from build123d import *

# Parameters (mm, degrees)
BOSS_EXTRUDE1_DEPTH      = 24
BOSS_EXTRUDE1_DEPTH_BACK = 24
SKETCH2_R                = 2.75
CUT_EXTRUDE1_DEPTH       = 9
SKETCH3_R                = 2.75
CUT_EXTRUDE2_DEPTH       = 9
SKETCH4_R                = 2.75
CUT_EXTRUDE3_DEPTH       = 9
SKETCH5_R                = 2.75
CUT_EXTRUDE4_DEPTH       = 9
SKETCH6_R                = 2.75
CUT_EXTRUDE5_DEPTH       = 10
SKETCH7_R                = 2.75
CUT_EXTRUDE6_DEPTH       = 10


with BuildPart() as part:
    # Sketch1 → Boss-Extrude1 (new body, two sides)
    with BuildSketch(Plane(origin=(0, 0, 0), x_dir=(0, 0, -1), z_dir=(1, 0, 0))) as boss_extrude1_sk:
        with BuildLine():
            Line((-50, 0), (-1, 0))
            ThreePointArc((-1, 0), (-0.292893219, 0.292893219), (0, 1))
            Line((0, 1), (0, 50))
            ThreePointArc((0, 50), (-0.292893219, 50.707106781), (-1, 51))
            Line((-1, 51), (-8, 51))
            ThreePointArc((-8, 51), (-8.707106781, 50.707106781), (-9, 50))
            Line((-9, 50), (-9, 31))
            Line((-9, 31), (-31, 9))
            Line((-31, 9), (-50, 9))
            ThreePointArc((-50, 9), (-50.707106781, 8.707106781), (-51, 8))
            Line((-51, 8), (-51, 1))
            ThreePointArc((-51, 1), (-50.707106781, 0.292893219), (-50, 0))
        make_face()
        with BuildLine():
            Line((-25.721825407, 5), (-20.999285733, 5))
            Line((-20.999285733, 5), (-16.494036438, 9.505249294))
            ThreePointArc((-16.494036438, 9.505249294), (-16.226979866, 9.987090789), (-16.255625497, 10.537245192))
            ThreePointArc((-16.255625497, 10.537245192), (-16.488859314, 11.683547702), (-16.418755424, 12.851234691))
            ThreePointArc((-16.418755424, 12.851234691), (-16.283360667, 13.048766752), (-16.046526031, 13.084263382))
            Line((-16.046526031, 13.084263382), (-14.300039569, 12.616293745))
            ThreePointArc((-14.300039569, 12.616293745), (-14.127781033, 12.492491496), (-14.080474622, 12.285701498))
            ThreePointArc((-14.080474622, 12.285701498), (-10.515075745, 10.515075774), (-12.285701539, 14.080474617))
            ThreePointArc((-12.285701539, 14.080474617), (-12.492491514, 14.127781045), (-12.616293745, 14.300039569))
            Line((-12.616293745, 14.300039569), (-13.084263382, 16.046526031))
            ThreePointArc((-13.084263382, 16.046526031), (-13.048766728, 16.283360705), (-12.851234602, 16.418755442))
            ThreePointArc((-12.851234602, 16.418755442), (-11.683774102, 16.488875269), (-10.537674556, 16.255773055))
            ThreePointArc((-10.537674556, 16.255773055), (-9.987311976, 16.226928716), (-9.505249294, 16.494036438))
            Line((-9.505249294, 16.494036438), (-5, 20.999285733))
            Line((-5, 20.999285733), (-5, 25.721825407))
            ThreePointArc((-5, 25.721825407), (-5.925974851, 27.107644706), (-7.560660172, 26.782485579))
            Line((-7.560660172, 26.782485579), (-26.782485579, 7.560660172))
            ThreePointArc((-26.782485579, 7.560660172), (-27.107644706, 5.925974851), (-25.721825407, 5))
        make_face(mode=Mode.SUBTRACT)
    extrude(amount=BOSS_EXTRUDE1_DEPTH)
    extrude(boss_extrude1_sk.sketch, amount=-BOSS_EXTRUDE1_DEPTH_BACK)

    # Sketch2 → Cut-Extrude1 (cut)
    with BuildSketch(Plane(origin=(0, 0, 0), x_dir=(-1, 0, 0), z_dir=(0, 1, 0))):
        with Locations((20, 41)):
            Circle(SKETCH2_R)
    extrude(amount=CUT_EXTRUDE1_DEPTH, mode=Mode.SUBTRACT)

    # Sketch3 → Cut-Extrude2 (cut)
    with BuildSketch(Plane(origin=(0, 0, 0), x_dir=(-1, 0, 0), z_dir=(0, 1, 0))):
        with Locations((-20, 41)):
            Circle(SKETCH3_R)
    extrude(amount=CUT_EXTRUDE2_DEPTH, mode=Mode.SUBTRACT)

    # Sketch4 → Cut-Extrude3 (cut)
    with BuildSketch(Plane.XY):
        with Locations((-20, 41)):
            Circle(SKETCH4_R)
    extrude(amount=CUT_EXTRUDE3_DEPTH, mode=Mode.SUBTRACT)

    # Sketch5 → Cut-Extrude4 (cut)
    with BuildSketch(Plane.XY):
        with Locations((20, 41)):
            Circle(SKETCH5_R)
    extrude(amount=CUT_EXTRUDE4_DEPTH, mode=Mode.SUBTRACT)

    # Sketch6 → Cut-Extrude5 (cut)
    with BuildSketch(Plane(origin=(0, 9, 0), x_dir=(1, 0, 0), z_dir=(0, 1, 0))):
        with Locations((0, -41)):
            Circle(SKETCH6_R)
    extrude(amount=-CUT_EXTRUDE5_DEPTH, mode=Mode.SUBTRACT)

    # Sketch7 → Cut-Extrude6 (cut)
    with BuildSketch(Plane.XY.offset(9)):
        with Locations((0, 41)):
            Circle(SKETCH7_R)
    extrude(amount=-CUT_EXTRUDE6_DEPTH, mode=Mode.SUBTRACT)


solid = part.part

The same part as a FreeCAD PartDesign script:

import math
import FreeCAD as App
import Part
import Sketcher

V = App.Vector
Q = App.Units.Quantity

doc = App.newDocument("Part")
body = doc.addObject("PartDesign::Body", "Body")

# Sketch on YZ plane
sketch1 = body.newObject("Sketcher::SketchObject", "Sketch")
sketch1.AttachmentSupport = (doc.getObject("YZ_Plane"), [""])
sketch1.MapMode = "FlatFace"
sketch1.addGeometry(Part.LineSegment(V(0, 50, 0), V(0, 1, 0)), False)
sketch1.addGeometry(Part.ArcOfCircle(Part.Circle(V(1, 1, 0), V(0, 0, 1), 1), math.radians(-180), math.radians(-90)), False)
sketch1.addGeometry(Part.LineSegment(V(1, 0, 0), V(50, 0, 0)), False)
sketch1.addGeometry(Part.ArcOfCircle(Part.Circle(V(50, 1, 0), V(0, 0, 1), 1), math.radians(-90), math.radians(0)), False)
sketch1.addGeometry(Part.LineSegment(V(51, 1, 0), V(51, 8, 0)), False)
sketch1.addGeometry(Part.ArcOfCircle(Part.Circle(V(50, 8, 0), V(0, 0, 1), 1), math.radians(0), math.radians(90)), False)
sketch1.addGeometry(Part.LineSegment(V(50, 9, 0), V(31, 9, 0)), False)
sketch1.addGeometry(Part.LineSegment(V(31, 9, 0), V(9, 31, 0)), False)
sketch1.addGeometry(Part.LineSegment(V(9, 31, 0), V(9, 50, 0)), False)
sketch1.addGeometry(Part.ArcOfCircle(Part.Circle(V(8, 50, 0), V(0, 0, 1), 1), math.radians(0), math.radians(90)), False)
sketch1.addGeometry(Part.LineSegment(V(8, 51, 0), V(1, 51, 0)), False)
sketch1.addGeometry(Part.ArcOfCircle(Part.Circle(V(1, 50, 0), V(0, 0, 1), 1), math.radians(90), math.radians(180)), False)
sketch1.addGeometry(Part.LineSegment(V(5, 20.999286, 0), V(5, 25.721825, 0)), False)
sketch1.addGeometry(Part.ArcOfCircle(Part.Circle(V(6.5, 25.721825, 0), V(0, 0, 1), 1.5), math.radians(45), math.radians(180)), False)
sketch1.addGeometry(Part.LineSegment(V(7.56066, 26.782486, 0), V(26.782486, 7.56066, 0)), False)
sketch1.addGeometry(Part.ArcOfCircle(Part.Circle(V(25.721825, 6.5, 0), V(0, 0, 1), 1.5), math.radians(-90), math.radians(45)), False)
sketch1.addGeometry(Part.LineSegment(V(25.721825, 5, 0), V(20.999286, 5, 0)), False)
sketch1.addGeometry(Part.LineSegment(V(20.999286, 5, 0), V(16.494036, 9.505249, 0)), False)
sketch1.addGeometry(Part.ArcOfCircle(Part.Circle(V(17.201318, 10.212182, 0), V(0, 0, 1), 1), math.radians(161.004563), math.radians(224.985872)), False)
sketch1.addGeometry(Part.ArcOfCircle(Part.Circle(V(12, 12, 0), V(0, 0, 1), 4.5), math.radians(-18.963225), math.radians(10.903956)), False)
sketch1.addGeometry(Part.ArcOfCircle(Part.Circle(V(16.124172, 12.794486, 0), V(0, 0, 1), 0.3), math.radians(10.903955), math.radians(105)), False)
sketch1.addGeometry(Part.LineSegment(V(16.046526, 13.084263, 0), V(14.30004, 12.616294, 0)), False)
sketch1.addGeometry(Part.ArcOfCircle(Part.Circle(V(14.377685, 12.326516, 0), V(0, 0, 1), 0.3), math.radians(105), math.radians(187.819237)), False)
sketch1.addGeometry(Part.ArcOfCircle(Part.Circle(V(12, 12, 0), V(0, 0, 1), 2.1), math.radians(82.180756), math.radians(367.819245)), False)
sketch1.addGeometry(Part.ArcOfCircle(Part.Circle(V(12.326516, 14.377685, 0), V(0, 0, 1), 0.3), math.radians(-97.819244), math.radians(-15)), False)
sketch1.addGeometry(Part.LineSegment(V(12.616294, 14.30004, 0), V(13.084263, 16.046526, 0)), False)
sketch1.addGeometry(Part.ArcOfCircle(Part.Circle(V(12.794486, 16.124172, 0), V(0, 0, 1), 0.3), math.radians(-15), math.radians(79.096028)), False)
sketch1.addGeometry(Part.ArcOfCircle(Part.Circle(V(12, 12, 0), V(0, 0, 1), 4.5), math.radians(79.096043), math.radians(108.969006)), False)
sketch1.addGeometry(Part.ArcOfCircle(Part.Circle(V(10.212182, 17.201318, 0), V(0, 0, 1), 1), math.radians(-134.985864), math.radians(-71.030572)), False)
sketch1.addGeometry(Part.LineSegment(V(9.505249, 16.494036, 0), V(5, 20.999286, 0)), False)
sketch1.addConstraint(Sketcher.Constraint("Tangent", 0, 2, 1, 1))
sketch1.addConstraint(Sketcher.Constraint("Tangent", 1, 2, 2, 1))
sketch1.addConstraint(Sketcher.Constraint("Tangent", 2, 2, 3, 1))
sketch1.addConstraint(Sketcher.Constraint("Tangent", 3, 2, 4, 1))
sketch1.addConstraint(Sketcher.Constraint("Tangent", 4, 2, 5, 1))
sketch1.addConstraint(Sketcher.Constraint("Tangent", 5, 2, 6, 1))
sketch1.addConstraint(Sketcher.Constraint("Coincident", 6, 2, 7, 1))
sketch1.addConstraint(Sketcher.Constraint("Coincident", 7, 2, 8, 1))
sketch1.addConstraint(Sketcher.Constraint("Tangent", 8, 2, 9, 1))
sketch1.addConstraint(Sketcher.Constraint("Tangent", 9, 2, 10, 1))
sketch1.addConstraint(Sketcher.Constraint("Tangent", 10, 2, 11, 1))
sketch1.addConstraint(Sketcher.Constraint("Tangent", 11, 2, 0, 1))
sketch1.addConstraint(Sketcher.Constraint("Tangent", 12, 2, 13, 2))
sketch1.addConstraint(Sketcher.Constraint("Tangent", 13, 1, 14, 1))
sketch1.addConstraint(Sketcher.Constraint("Tangent", 14, 2, 15, 2))
sketch1.addConstraint(Sketcher.Constraint("Tangent", 15, 1, 16, 1))
sketch1.addConstraint(Sketcher.Constraint("Coincident", 16, 2, 17, 1))
sketch1.addConstraint(Sketcher.Constraint("Coincident", 17, 2, 18, 2))
sketch1.addConstraint(Sketcher.Constraint("Coincident", 18, 1, 19, 1))
sketch1.addConstraint(Sketcher.Constraint("Tangent", 19, 2, 20, 1))
sketch1.addConstraint(Sketcher.Constraint("Tangent", 20, 2, 21, 1))
sketch1.addConstraint(Sketcher.Constraint("Tangent", 21, 2, 22, 1))
sketch1.addConstraint(Sketcher.Constraint("Tangent", 22, 2, 23, 2))
sketch1.addConstraint(Sketcher.Constraint("Tangent", 23, 1, 24, 1))
sketch1.addConstraint(Sketcher.Constraint("Tangent", 24, 2, 25, 1))
sketch1.addConstraint(Sketcher.Constraint("Tangent", 25, 2, 26, 1))
sketch1.addConstraint(Sketcher.Constraint("Tangent", 26, 2, 27, 1))
sketch1.addConstraint(Sketcher.Constraint("Coincident", 27, 2, 28, 2))
sketch1.addConstraint(Sketcher.Constraint("Coincident", 28, 1, 29, 1))
sketch1.addConstraint(Sketcher.Constraint("Coincident", 29, 2, 12, 1))
sketch1.addConstraint(Sketcher.Constraint("Vertical", 0))
sketch1.addConstraint(Sketcher.Constraint("Horizontal", 2))
sketch1.addConstraint(Sketcher.Constraint("Vertical", 4))
sketch1.addConstraint(Sketcher.Constraint("Horizontal", 6))
sketch1.addConstraint(Sketcher.Constraint("Vertical", 8))
sketch1.addConstraint(Sketcher.Constraint("Horizontal", 10))
sketch1.addConstraint(Sketcher.Constraint("Vertical", 12))
sketch1.addConstraint(Sketcher.Constraint("Horizontal", 16))
sketch1.addConstraint(Sketcher.Constraint("Coincident", 23, 3, 19, 3))
sketch1.addConstraint(Sketcher.Constraint("Coincident", 27, 3, 19, 3))
sketch1.addConstraint(Sketcher.Constraint("Equal", 1, 3))
sketch1.addConstraint(Sketcher.Constraint("Equal", 3, 5))
sketch1.addConstraint(Sketcher.Constraint("Equal", 5, 9))
sketch1.addConstraint(Sketcher.Constraint("Equal", 9, 11))
sketch1.addConstraint(Sketcher.Constraint("Equal", 13, 15))
sketch1.addConstraint(Sketcher.Constraint("Equal", 11, 18))
sketch1.addConstraint(Sketcher.Constraint("Equal", 20, 22))
sketch1.addConstraint(Sketcher.Constraint("Equal", 22, 24))
sketch1.addConstraint(Sketcher.Constraint("Equal", 24, 26))
sketch1.addConstraint(Sketcher.Constraint("Equal", 19, 27))
sketch1.addConstraint(Sketcher.Constraint("Equal", 18, 28))
sketch1.addConstraint(Sketcher.Constraint("PointOnObject", 0, 2, -2))
sketch1.addConstraint(Sketcher.Constraint("PointOnObject", 1, 2, -1))
sketch1.addConstraint(Sketcher.Constraint("Parallel", 7, 14))
sketch1.addConstraint(Sketcher.Constraint("Parallel", 14, 17))
sketch1.addConstraint(Sketcher.Constraint("Parallel", 17, 29))
sketch1.addConstraint(Sketcher.Constraint("Equal", 2, 0))
sketch1.addConstraint(Sketcher.Constraint("Equal", 10, 4))
sketch1.addConstraint(Sketcher.Constraint("Equal", 6, 8))
sketch1.addConstraint(Sketcher.Constraint("Equal", 16, 12))
sketch1.addConstraint(Sketcher.Constraint("Equal", 21, 25))
sketch1.addConstraint(Sketcher.Constraint("Equal", 17, 29))
sketch1.addConstraint(Sketcher.Constraint("Radius", 1, Q("1 mm")))
sketch1.addConstraint(Sketcher.Constraint("Radius", 13, Q("1.5 mm")))
sketch1.addConstraint(Sketcher.Constraint("Radius", 19, Q("4.5 mm")))
sketch1.addConstraint(Sketcher.Constraint("Radius", 20, Q("0.3 mm")))
sketch1.addConstraint(Sketcher.Constraint("Radius", 23, Q("2.1 mm")))
sketch1.addConstraint(Sketcher.Constraint("DistanceX", 2, 1, 2, 2, Q("49 mm")))
sketch1.addConstraint(Sketcher.Constraint("DistanceX", 6, 2, 6, 1, Q("19 mm")))
sketch1.addConstraint(Sketcher.Constraint("DistanceX", 10, 2, 10, 1, Q("7 mm")))
sketch1.addConstraint(Sketcher.Constraint("Angle", 21, Q("-165 deg")))
sketch1.addConstraint(Sketcher.Constraint("Angle", 25, Q("75 deg")))
sketch1.addConstraint(Sketcher.Constraint("DistanceX", -1, 1, 19, 3, Q("12 mm")))
sketch1.addConstraint(Sketcher.Constraint("DistanceY", -1, 1, 19, 3, Q("12 mm")))
sketch1.addConstraint(Sketcher.Constraint("DistanceX", -1, 1, 12, 2, Q("5 mm")))
sketch1.addConstraint(Sketcher.Constraint("DistanceY", -1, 1, 15, 1, Q("5 mm")))
sketch1.addConstraint(Sketcher.Constraint("DistanceX", 16, 2, 16, 1, Q("4.72254 mm")))
sketch1.addConstraint(Sketcher.Constraint("DistanceY", -1, 1, 22, 2, Q("12.285702 mm")))
sketch1.addConstraint(Sketcher.Constraint("DistanceX", 24, 3, 18, 3, Q("4.874802 mm")))
sketch1.addConstraint(Sketcher.Constraint("DistanceX", 20, 3, 18, 1, Q("0.131601 mm")))
sketch1.addConstraint(Sketcher.Constraint("DistanceY", 25, 2, 27, 2, Q("0.209099 mm")))
sketch1.addConstraint(Sketcher.Constraint("DistanceY", -1, 1, 17, 2, Q("9.505249 mm")))
pad1 = body.newObject("PartDesign::Pad", "Pad")
pad1.Profile = sketch1
pad1.Type = "TwoLengths"
pad1.Length = 24
pad1.Length2 = 24

# Sketch on XZ plane
sketch2 = body.newObject("Sketcher::SketchObject", "Sketch001")
sketch2.AttachmentSupport = (doc.getObject("XZ_Plane"), [""])
sketch2.MapMode = "FlatFace"
sketch2.addGeometry(Part.Circle(V(-20, 41, 0), V(0, 0, 1), 2.75), False)
sketch2.addConstraint(Sketcher.Constraint("Diameter", 0, Q("5.5 mm")))
sketch2.addConstraint(Sketcher.Constraint("DistanceX", 0, 3, -1, 1, Q("20 mm")))
sketch2.addConstraint(Sketcher.Constraint("DistanceY", -1, 1, 0, 3, Q("41 mm")))
pocket1 = body.newObject("PartDesign::Pocket", "Pocket")
pocket1.Profile = sketch2
pocket1.Length = 9

# Sketch on XZ plane
sketch3 = body.newObject("Sketcher::SketchObject", "Sketch002")
sketch3.AttachmentSupport = (doc.getObject("XZ_Plane"), [""])
sketch3.MapMode = "FlatFace"
sketch3.addGeometry(Part.Circle(V(20, 41, 0), V(0, 0, 1), 2.75), False)
sketch3.addConstraint(Sketcher.Constraint("Diameter", 0, Q("5.5 mm")))
sketch3.addConstraint(Sketcher.Constraint("DistanceX", -1, 1, 0, 3, Q("20 mm")))
sketch3.addConstraint(Sketcher.Constraint("DistanceY", -1, 1, 0, 3, Q("41 mm")))
pocket2 = body.newObject("PartDesign::Pocket", "Pocket001")
pocket2.Profile = sketch3
pocket2.Length = 9

# Sketch on XY plane
sketch4 = body.newObject("Sketcher::SketchObject", "Sketch003")
sketch4.AttachmentSupport = (doc.getObject("XY_Plane"), [""])
sketch4.MapMode = "FlatFace"
sketch4.addGeometry(Part.Circle(V(-20, 41, 0), V(0, 0, 1), 2.75), False)
sketch4.addConstraint(Sketcher.Constraint("Diameter", 0, Q("5.5 mm")))
sketch4.addConstraint(Sketcher.Constraint("DistanceX", 0, 3, -1, 1, Q("20 mm")))
sketch4.addConstraint(Sketcher.Constraint("DistanceY", -1, 1, 0, 3, Q("41 mm")))
pocket3 = body.newObject("PartDesign::Pocket", "Pocket002")
pocket3.Profile = sketch4
pocket3.Length = 9
pocket3.Reversed = True

# Sketch on XY plane
sketch5 = body.newObject("Sketcher::SketchObject", "Sketch004")
sketch5.AttachmentSupport = (doc.getObject("XY_Plane"), [""])
sketch5.MapMode = "FlatFace"
sketch5.addGeometry(Part.Circle(V(20, 41, 0), V(0, 0, 1), 2.75), False)
sketch5.addConstraint(Sketcher.Constraint("Diameter", 0, Q("5.5 mm")))
sketch5.addConstraint(Sketcher.Constraint("DistanceX", -1, 1, 0, 3, Q("20 mm")))
sketch5.addConstraint(Sketcher.Constraint("DistanceY", -1, 1, 0, 3, Q("41 mm")))
pocket4 = body.newObject("PartDesign::Pocket", "Pocket003")
pocket4.Profile = sketch5
pocket4.Length = 9
pocket4.Reversed = True

# Sketch on XZ plane
sketch6 = body.newObject("Sketcher::SketchObject", "Sketch005")
sketch6.AttachmentSupport = (doc.getObject("XZ_Plane"), [""])
sketch6.MapMode = "FlatFace"
sketch6.AttachmentOffset = App.Placement(V(0, 0, -9), App.Rotation())
sketch6.addGeometry(Part.Circle(V(0, 41, 0), V(0, 0, 1), 2.75), False)
sketch6.addConstraint(Sketcher.Constraint("PointOnObject", 0, 3, -2))
sketch6.addConstraint(Sketcher.Constraint("Diameter", 0, Q("5.5 mm")))
sketch6.addConstraint(Sketcher.Constraint("DistanceY", -1, 1, 0, 3, Q("41 mm")))
pocket5 = body.newObject("PartDesign::Pocket", "Pocket004")
pocket5.Profile = sketch6
pocket5.Length = 10
pocket5.Reversed = True

# Sketch on XY plane
sketch7 = body.newObject("Sketcher::SketchObject", "Sketch006")
sketch7.AttachmentSupport = (doc.getObject("XY_Plane"), [""])
sketch7.MapMode = "FlatFace"
sketch7.AttachmentOffset = App.Placement(V(0, 0, 9), App.Rotation())
sketch7.addGeometry(Part.Circle(V(0, 41, 0), V(0, 0, 1), 2.75), False)
sketch7.addConstraint(Sketcher.Constraint("PointOnObject", 0, 3, -2))
sketch7.addConstraint(Sketcher.Constraint("Diameter", 0, Q("5.5 mm")))
sketch7.addConstraint(Sketcher.Constraint("DistanceY", -1, 1, 0, 3, Q("41 mm")))
pocket6 = body.newObject("PartDesign::Pocket", "Pocket005")
pocket6.Profile = sketch7
pocket6.Length = 10

doc.recompute()
